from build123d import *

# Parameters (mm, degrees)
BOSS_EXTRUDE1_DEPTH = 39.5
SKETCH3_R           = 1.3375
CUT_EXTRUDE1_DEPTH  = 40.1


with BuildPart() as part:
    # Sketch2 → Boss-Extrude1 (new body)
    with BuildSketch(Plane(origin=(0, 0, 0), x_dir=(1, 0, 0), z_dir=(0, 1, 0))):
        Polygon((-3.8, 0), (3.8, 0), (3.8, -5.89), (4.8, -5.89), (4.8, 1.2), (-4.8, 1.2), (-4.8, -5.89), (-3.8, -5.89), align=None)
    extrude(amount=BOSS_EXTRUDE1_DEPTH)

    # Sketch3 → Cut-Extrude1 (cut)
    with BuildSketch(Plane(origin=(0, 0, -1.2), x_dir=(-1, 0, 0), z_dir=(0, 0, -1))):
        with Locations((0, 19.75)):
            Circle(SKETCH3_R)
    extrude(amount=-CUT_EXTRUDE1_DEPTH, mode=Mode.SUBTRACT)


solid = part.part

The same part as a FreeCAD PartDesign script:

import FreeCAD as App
import Part
import Sketcher

V = App.Vector
Q = App.Units.Quantity


def add_polygon(sketch, points):
    """Adds a closed chain of lines whose ends are joined by coincident constraints."""
    first, n = sketch.GeometryCount, len(points)
    for a, b in zip(points, points[1:] + points[:1]):
        sketch.addGeometry(Part.LineSegment(App.Vector(*a, 0), App.Vector(*b, 0)), False)
    for i in range(n):
        sketch.addConstraint(Sketcher.Constraint("Coincident", first + i, 2, first + (i + 1) % n, 1))

doc = App.newDocument("Part")
body = doc.addObject("PartDesign::Body", "Body")

# Sketch on XZ plane
sketch1 = body.newObject("Sketcher::SketchObject", "Sketch")
sketch1.AttachmentSupport = (doc.getObject("XZ_Plane"), [""])
sketch1.MapMode = "FlatFace"
add_polygon(sketch1, [(-3.8, 0), (3.8, 0), (3.8, 5.9), (4.8, 5.9), (4.8, -1.2), (-4.8, -1.2), (-4.8, 5.9), (-3.8, 5.9)])  # lines 0-7
sketch1.addConstraint([
    Sketcher.Constraint("Horizontal", 0),
    Sketcher.Constraint("Vertical", 1),
    Sketcher.Constraint("Horizontal", 2),
    Sketcher.Constraint("Vertical", 3),
    Sketcher.Constraint("Horizontal", 4),
    Sketcher.Constraint("Vertical", 5),
    Sketcher.Constraint("Horizontal", 6),
    Sketcher.Constraint("Vertical", 7),
    Sketcher.Constraint("Symmetric", 0, 2, 7, 2, -1, 1),
    Sketcher.Constraint("Symmetric", 2, 2, 5, 2, -2),
    Sketcher.Constraint("DistanceX", 2, 1, 2, 2, Q("1 mm")),
    Sketcher.Constraint("DistanceX", 0, 1, 0, 2, Q("7.6 mm")),
    Sketcher.Constraint("DistanceY", 1, 1, 1, 2, Q("5.89 mm")),
    Sketcher.Constraint("DistanceY", 3, 2, 3, 1, Q("7.09 mm")),
])
pad1 = body.newObject("PartDesign::Pad", "Pad")
pad1.Profile = sketch1
pad1.Length = 39.5
pad1.Reversed = True

# Sketch on XY plane
sketch2 = body.newObject("Sketcher::SketchObject", "Sketch001")
sketch2.AttachmentSupport = (doc.getObject("XY_Plane"), [""])
sketch2.MapMode = "FlatFace"
sketch2.AttachmentOffset = App.Placement(V(0, 0, -1.2), App.Rotation())
sketch2.addGeometry(Part.Circle(V(0, 19.8, 0), V(0, 0, 1), 1.3), False)
sketch2.addConstraint([
    Sketcher.Constraint("PointOnObject", 0, 3, -2),
    Sketcher.Constraint("Diameter", 0, Q("2.675 mm")),
    Sketcher.Constraint("DistanceY", -1, 1, 0, 3, Q("19.75 mm")),
])
pocket1 = body.newObject("PartDesign::Pocket", "Pocket")
pocket1.Profile = sketch2
pocket1.Length = 40.1
pocket1.Reversed = True

doc.recompute()
